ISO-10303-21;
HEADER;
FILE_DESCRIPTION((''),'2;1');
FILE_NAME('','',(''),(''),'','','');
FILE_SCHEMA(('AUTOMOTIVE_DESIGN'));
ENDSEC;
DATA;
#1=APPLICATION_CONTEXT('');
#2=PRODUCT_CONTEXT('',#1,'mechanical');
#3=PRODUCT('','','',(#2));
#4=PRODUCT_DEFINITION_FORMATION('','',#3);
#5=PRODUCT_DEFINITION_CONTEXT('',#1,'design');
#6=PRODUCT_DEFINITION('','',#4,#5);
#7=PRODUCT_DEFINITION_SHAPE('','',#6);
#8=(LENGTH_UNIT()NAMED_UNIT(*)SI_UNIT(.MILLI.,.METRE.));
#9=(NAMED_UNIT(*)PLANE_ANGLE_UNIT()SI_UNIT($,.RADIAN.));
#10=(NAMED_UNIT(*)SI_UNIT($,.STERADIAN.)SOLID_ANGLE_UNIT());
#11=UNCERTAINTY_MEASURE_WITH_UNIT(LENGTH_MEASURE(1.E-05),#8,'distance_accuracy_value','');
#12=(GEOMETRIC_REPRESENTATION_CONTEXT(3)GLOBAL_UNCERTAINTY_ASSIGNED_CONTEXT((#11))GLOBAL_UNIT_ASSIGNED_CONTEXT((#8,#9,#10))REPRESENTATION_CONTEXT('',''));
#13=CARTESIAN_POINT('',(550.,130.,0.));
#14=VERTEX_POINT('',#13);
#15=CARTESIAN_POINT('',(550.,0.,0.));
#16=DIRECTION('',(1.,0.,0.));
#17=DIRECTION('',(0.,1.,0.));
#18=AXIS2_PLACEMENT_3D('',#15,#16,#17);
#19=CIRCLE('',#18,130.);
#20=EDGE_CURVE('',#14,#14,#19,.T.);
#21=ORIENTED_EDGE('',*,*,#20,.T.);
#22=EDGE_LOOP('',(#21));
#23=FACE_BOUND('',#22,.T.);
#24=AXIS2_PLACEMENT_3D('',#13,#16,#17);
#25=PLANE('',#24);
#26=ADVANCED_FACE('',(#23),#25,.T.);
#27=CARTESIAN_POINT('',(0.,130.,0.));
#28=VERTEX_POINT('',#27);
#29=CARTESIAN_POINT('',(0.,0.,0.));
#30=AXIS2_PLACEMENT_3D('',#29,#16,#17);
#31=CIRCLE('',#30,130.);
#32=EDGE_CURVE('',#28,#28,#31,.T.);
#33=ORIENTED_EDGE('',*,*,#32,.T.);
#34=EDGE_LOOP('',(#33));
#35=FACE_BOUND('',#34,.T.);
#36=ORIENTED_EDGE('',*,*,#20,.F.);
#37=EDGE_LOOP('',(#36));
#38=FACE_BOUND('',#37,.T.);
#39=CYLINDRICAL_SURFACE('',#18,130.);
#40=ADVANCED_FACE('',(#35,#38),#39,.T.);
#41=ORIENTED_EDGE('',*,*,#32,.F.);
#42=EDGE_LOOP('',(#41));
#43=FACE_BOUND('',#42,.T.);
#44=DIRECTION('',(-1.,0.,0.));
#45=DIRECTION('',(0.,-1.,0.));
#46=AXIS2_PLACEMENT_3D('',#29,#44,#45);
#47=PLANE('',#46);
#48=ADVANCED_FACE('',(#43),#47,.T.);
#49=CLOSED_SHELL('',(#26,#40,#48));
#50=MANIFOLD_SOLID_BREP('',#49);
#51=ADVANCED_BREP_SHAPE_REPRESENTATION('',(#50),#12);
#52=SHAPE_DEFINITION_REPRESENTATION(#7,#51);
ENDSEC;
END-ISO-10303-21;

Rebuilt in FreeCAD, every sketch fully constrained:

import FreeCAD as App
import Part
import Sketcher
from FreeCAD import Vector

doc = App.newDocument("Part")
body = doc.addObject("PartDesign::Body", "Body")

# Sketch on XY plane
sketch1 = doc.addObject("Sketcher::SketchObject", "Sketch")
body.addObject(sketch1)
sketch1.AttachmentSupport = (doc.XY_Plane, [""])
sketch1.MapMode = "FlatFace"
sketch1.addGeometry([
    Part.LineSegment(Vector(0, 130, 0), Vector(0, 0, 0)),
    Part.LineSegment(Vector(0, 0, 0), Vector(550, 0, 0)),
    Part.LineSegment(Vector(550, 0, 0), Vector(550, 130, 0)),
    Part.LineSegment(Vector(550, 130, 0), Vector(0, 130, 0)),
], False)
sketch1.addConstraint([
    Sketcher.Constraint("Coincident", 0, 2, 1, 1),
    Sketcher.Constraint("Coincident", 1, 2, 2, 1),
    Sketcher.Constraint("Coincident", 2, 2, 3, 1),
    Sketcher.Constraint("Coincident", 3, 2, 0, 1),
    Sketcher.Constraint("Vertical", 0),
    Sketcher.Constraint("Horizontal", 1),
    Sketcher.Constraint("Vertical", 2),
    Sketcher.Constraint("Horizontal", 3),
    Sketcher.Constraint("Coincident", 0, 2, -1, 1),
    Sketcher.Constraint("DistanceX", 1, 1, 1, 2, 550.0),
    Sketcher.Constraint("DistanceY", 0, 2, 0, 1, 130.0),
])
revolution = doc.addObject("PartDesign::Revolution", "Revolution")
body.addObject(revolution)
revolution.Profile = sketch1
revolution.ReferenceAxis = (sketch1, ["H_Axis"])
revolution.Angle = 360

doc.recompute()
